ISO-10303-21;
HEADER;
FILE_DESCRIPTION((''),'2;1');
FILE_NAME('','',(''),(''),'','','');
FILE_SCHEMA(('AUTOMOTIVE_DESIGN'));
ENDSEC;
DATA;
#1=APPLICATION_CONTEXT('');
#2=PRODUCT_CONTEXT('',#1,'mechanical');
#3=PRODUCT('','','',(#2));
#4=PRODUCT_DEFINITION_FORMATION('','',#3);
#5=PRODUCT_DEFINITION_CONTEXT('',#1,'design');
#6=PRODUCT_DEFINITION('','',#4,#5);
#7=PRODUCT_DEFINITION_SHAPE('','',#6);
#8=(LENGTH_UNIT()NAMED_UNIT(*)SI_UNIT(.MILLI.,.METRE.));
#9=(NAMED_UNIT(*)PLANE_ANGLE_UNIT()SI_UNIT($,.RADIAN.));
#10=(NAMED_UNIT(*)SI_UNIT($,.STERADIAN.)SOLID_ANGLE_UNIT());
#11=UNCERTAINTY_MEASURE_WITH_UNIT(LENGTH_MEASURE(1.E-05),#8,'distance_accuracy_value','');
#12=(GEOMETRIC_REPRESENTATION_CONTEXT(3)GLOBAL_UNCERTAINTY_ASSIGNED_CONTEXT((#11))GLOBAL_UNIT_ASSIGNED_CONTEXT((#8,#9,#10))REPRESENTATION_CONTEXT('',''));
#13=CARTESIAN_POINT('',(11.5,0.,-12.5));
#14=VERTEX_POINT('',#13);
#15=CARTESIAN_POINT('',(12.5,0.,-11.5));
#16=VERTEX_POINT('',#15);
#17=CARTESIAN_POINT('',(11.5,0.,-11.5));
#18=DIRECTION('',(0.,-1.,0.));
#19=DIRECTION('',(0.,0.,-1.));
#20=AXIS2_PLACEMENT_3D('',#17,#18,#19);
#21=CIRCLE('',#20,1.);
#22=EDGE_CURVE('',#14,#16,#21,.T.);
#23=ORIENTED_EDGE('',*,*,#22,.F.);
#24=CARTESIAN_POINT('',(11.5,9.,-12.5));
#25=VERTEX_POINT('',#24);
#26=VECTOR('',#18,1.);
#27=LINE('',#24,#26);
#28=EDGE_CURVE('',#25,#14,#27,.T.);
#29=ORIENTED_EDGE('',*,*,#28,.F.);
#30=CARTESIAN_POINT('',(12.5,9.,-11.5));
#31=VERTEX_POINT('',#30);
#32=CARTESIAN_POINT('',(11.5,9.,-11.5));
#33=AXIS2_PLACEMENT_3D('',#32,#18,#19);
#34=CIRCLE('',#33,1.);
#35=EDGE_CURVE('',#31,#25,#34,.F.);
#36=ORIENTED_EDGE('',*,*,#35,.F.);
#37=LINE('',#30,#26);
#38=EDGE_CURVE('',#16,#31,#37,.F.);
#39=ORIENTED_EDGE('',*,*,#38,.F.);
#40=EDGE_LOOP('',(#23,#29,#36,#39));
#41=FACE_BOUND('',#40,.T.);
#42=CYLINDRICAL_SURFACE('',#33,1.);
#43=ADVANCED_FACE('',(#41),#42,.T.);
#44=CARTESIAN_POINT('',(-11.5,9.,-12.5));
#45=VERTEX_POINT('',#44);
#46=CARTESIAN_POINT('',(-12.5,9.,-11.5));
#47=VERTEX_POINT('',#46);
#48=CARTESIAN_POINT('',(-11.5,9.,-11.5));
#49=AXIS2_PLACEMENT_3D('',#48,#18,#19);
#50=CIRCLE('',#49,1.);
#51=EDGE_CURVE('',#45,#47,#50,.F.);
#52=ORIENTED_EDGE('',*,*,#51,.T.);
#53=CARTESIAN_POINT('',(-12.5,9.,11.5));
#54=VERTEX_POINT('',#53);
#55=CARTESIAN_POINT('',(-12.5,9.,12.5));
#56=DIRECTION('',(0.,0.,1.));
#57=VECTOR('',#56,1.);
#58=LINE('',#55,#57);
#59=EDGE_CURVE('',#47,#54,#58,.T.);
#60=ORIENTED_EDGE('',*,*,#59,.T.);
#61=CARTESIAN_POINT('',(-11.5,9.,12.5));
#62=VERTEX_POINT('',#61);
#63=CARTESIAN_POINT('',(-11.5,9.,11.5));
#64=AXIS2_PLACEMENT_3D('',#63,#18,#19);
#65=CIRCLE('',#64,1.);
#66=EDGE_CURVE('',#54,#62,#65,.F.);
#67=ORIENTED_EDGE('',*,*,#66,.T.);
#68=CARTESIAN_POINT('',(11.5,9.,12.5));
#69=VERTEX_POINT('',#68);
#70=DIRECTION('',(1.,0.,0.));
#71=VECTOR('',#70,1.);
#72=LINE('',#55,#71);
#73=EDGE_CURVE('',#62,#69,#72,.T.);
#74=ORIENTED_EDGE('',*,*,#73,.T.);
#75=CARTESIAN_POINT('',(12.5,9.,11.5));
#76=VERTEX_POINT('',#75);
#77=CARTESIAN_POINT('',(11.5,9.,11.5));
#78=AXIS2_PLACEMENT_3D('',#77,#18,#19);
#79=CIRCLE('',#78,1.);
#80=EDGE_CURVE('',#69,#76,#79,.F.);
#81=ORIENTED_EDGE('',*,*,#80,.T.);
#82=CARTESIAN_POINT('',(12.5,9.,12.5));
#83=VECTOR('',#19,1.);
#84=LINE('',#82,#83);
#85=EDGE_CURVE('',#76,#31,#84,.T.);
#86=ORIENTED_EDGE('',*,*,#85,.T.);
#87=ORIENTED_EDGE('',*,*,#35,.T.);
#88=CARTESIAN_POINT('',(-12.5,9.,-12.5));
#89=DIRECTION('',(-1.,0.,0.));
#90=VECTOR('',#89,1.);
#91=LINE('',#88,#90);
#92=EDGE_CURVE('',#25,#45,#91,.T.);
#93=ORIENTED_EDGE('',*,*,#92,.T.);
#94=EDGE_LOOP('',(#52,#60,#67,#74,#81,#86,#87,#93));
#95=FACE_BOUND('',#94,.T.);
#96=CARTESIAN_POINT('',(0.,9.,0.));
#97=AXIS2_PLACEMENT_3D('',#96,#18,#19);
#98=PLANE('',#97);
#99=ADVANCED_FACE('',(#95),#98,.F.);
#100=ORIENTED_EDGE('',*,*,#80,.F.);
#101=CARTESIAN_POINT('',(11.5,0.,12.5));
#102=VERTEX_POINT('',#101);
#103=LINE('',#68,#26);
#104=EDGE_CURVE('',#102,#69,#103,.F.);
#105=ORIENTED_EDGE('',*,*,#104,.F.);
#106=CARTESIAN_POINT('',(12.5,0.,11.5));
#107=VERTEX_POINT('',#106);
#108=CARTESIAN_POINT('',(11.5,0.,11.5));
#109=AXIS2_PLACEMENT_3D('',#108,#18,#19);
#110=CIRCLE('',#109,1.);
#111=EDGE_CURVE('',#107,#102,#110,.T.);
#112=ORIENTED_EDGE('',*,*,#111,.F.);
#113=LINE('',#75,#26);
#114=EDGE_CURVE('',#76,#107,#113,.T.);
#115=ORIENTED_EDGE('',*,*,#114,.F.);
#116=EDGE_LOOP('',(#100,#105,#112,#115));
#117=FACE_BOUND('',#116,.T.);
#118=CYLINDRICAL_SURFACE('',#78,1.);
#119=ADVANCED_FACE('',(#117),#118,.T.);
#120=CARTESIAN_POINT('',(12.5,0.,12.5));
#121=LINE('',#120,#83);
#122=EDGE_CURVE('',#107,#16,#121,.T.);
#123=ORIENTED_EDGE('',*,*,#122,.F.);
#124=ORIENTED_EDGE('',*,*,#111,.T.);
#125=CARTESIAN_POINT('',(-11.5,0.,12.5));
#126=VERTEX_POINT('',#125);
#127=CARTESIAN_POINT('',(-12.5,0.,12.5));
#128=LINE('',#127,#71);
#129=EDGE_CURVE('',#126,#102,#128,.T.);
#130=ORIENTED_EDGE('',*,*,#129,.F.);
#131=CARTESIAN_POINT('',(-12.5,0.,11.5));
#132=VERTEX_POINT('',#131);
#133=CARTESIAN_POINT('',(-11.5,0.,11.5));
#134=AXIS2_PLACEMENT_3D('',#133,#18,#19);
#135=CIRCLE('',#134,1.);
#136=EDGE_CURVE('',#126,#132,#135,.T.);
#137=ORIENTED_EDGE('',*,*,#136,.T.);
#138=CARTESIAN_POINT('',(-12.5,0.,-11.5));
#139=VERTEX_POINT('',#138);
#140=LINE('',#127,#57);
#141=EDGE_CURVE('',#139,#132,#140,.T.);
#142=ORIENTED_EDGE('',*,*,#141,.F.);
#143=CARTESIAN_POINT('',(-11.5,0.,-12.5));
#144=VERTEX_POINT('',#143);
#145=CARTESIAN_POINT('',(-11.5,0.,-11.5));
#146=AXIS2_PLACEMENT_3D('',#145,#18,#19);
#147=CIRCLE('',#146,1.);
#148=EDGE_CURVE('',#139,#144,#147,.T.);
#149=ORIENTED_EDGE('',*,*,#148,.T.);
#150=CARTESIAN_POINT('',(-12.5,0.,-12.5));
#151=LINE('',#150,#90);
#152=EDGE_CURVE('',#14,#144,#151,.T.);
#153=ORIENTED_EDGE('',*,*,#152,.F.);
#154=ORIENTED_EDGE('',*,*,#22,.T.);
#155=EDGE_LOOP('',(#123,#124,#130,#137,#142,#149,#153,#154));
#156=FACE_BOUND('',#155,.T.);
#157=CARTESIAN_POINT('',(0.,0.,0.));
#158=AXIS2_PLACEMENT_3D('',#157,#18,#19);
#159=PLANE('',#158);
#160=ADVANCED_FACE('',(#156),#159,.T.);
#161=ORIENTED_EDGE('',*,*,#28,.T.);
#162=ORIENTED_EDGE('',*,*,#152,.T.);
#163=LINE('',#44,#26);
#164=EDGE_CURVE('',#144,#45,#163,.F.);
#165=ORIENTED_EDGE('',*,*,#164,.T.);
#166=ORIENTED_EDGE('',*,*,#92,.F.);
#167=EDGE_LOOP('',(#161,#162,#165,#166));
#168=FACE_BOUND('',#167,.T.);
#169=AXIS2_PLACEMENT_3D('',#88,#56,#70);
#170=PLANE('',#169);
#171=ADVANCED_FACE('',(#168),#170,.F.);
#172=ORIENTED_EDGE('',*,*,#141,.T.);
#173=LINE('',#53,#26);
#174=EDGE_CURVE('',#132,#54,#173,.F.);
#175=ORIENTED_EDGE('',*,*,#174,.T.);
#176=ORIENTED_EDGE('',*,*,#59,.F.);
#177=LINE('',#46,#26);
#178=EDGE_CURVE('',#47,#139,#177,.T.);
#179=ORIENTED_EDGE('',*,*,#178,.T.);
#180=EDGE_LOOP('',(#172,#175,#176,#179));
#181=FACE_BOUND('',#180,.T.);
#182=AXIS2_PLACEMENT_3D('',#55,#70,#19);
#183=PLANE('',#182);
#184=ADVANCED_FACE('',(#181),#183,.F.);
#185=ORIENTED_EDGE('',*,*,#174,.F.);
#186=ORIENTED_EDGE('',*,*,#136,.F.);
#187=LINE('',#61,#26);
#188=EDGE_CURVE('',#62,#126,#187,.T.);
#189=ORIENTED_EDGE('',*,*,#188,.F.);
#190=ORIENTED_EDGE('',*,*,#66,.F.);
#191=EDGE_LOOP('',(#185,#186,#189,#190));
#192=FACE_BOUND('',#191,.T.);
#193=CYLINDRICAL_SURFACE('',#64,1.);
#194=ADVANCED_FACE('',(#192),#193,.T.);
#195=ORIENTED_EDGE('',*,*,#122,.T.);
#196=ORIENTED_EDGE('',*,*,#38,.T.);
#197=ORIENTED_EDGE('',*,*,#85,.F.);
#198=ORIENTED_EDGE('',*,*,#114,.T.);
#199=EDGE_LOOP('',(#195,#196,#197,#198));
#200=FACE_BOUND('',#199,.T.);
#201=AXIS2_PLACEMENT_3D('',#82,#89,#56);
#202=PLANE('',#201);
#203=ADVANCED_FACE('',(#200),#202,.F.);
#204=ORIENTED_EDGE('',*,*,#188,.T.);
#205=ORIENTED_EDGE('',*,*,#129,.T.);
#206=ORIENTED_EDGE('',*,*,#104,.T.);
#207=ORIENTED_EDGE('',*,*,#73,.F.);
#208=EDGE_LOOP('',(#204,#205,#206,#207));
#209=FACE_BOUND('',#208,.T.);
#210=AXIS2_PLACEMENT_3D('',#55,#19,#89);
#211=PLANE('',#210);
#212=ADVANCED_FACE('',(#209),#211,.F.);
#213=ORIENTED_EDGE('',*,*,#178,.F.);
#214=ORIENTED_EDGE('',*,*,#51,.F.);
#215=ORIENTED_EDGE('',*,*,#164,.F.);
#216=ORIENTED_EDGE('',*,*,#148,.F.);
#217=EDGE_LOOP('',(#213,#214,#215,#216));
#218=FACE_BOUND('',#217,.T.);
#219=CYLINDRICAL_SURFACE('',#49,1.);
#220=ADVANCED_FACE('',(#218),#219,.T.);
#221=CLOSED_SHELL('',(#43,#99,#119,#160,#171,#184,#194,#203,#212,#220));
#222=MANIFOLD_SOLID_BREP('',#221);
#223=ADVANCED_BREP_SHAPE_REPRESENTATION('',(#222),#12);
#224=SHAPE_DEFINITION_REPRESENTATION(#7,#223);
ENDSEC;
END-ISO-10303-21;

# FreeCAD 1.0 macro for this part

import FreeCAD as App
import Part
import Sketcher
from FreeCAD import Vector
Q = App.Units.Quantity


def edges_at(feature, points):
    """Names of the edges that pass closest to the given points."""
    edges = feature.Shape.Edges
    near = lambda p: min(range(len(edges)), key=lambda i: edges[i].distToShape(Part.Vertex(*p))[0])
    return sorted({f"Edge{near(p) + 1}" for p in points})

doc = App.newDocument("Part")
body = doc.addObject("PartDesign::Body", "Body")

# Sketch on XZ plane
sketch1 = body.newObject("Sketcher::SketchObject", "Sketch")
sketch1.AttachmentSupport = (doc.getObject("XZ_Plane"), [""])
sketch1.MapMode = "FlatFace"
sketch1.addGeometry([
    Part.LineSegment(Vector(-12.5, -12.5, 0), Vector(-12.5, 12.5, 0)),
    Part.LineSegment(Vector(-12.5, 12.5, 0), Vector(12.5, 12.5, 0)),
    Part.LineSegment(Vector(12.5, 12.5, 0), Vector(12.5, -12.5, 0)),
    Part.LineSegment(Vector(12.5, -12.5, 0), Vector(-12.5, -12.5, 0)),
], False)
sketch1.addConstraint([
    Sketcher.Constraint("Coincident", 0, 2, 1, 1),
    Sketcher.Constraint("Coincident", 1, 2, 2, 1),
    Sketcher.Constraint("Coincident", 2, 2, 3, 1),
    Sketcher.Constraint("Coincident", 3, 2, 0, 1),
    Sketcher.Constraint("Vertical", 0),
    Sketcher.Constraint("Horizontal", 1),
    Sketcher.Constraint("Vertical", 2),
    Sketcher.Constraint("Horizontal", 3),
    Sketcher.Constraint("Symmetric", 0, 2, 2, 2, -1, 1),
    Sketcher.Constraint("Equal", 3, 0),
    Sketcher.Constraint("DistanceX", 1, 1, 1, 2, Q("25 mm")),
])
pad1 = body.newObject("PartDesign::Pad", "Pad")
pad1.Profile = sketch1
pad1.Length = 9
pad1.Reversed = True
doc.recompute()

fillet = body.newObject("PartDesign::Fillet", "Fillet")
fillet.Base = (pad1, edges_at(pad1, [
    (-12.5, 4.5, -12.5),
    (12.5, 4.5, -12.5),
    (12.5, 4.5, 12.5),
    (-12.5, 4.5, 12.5),
]))
fillet.Radius = 1

doc.recompute()
